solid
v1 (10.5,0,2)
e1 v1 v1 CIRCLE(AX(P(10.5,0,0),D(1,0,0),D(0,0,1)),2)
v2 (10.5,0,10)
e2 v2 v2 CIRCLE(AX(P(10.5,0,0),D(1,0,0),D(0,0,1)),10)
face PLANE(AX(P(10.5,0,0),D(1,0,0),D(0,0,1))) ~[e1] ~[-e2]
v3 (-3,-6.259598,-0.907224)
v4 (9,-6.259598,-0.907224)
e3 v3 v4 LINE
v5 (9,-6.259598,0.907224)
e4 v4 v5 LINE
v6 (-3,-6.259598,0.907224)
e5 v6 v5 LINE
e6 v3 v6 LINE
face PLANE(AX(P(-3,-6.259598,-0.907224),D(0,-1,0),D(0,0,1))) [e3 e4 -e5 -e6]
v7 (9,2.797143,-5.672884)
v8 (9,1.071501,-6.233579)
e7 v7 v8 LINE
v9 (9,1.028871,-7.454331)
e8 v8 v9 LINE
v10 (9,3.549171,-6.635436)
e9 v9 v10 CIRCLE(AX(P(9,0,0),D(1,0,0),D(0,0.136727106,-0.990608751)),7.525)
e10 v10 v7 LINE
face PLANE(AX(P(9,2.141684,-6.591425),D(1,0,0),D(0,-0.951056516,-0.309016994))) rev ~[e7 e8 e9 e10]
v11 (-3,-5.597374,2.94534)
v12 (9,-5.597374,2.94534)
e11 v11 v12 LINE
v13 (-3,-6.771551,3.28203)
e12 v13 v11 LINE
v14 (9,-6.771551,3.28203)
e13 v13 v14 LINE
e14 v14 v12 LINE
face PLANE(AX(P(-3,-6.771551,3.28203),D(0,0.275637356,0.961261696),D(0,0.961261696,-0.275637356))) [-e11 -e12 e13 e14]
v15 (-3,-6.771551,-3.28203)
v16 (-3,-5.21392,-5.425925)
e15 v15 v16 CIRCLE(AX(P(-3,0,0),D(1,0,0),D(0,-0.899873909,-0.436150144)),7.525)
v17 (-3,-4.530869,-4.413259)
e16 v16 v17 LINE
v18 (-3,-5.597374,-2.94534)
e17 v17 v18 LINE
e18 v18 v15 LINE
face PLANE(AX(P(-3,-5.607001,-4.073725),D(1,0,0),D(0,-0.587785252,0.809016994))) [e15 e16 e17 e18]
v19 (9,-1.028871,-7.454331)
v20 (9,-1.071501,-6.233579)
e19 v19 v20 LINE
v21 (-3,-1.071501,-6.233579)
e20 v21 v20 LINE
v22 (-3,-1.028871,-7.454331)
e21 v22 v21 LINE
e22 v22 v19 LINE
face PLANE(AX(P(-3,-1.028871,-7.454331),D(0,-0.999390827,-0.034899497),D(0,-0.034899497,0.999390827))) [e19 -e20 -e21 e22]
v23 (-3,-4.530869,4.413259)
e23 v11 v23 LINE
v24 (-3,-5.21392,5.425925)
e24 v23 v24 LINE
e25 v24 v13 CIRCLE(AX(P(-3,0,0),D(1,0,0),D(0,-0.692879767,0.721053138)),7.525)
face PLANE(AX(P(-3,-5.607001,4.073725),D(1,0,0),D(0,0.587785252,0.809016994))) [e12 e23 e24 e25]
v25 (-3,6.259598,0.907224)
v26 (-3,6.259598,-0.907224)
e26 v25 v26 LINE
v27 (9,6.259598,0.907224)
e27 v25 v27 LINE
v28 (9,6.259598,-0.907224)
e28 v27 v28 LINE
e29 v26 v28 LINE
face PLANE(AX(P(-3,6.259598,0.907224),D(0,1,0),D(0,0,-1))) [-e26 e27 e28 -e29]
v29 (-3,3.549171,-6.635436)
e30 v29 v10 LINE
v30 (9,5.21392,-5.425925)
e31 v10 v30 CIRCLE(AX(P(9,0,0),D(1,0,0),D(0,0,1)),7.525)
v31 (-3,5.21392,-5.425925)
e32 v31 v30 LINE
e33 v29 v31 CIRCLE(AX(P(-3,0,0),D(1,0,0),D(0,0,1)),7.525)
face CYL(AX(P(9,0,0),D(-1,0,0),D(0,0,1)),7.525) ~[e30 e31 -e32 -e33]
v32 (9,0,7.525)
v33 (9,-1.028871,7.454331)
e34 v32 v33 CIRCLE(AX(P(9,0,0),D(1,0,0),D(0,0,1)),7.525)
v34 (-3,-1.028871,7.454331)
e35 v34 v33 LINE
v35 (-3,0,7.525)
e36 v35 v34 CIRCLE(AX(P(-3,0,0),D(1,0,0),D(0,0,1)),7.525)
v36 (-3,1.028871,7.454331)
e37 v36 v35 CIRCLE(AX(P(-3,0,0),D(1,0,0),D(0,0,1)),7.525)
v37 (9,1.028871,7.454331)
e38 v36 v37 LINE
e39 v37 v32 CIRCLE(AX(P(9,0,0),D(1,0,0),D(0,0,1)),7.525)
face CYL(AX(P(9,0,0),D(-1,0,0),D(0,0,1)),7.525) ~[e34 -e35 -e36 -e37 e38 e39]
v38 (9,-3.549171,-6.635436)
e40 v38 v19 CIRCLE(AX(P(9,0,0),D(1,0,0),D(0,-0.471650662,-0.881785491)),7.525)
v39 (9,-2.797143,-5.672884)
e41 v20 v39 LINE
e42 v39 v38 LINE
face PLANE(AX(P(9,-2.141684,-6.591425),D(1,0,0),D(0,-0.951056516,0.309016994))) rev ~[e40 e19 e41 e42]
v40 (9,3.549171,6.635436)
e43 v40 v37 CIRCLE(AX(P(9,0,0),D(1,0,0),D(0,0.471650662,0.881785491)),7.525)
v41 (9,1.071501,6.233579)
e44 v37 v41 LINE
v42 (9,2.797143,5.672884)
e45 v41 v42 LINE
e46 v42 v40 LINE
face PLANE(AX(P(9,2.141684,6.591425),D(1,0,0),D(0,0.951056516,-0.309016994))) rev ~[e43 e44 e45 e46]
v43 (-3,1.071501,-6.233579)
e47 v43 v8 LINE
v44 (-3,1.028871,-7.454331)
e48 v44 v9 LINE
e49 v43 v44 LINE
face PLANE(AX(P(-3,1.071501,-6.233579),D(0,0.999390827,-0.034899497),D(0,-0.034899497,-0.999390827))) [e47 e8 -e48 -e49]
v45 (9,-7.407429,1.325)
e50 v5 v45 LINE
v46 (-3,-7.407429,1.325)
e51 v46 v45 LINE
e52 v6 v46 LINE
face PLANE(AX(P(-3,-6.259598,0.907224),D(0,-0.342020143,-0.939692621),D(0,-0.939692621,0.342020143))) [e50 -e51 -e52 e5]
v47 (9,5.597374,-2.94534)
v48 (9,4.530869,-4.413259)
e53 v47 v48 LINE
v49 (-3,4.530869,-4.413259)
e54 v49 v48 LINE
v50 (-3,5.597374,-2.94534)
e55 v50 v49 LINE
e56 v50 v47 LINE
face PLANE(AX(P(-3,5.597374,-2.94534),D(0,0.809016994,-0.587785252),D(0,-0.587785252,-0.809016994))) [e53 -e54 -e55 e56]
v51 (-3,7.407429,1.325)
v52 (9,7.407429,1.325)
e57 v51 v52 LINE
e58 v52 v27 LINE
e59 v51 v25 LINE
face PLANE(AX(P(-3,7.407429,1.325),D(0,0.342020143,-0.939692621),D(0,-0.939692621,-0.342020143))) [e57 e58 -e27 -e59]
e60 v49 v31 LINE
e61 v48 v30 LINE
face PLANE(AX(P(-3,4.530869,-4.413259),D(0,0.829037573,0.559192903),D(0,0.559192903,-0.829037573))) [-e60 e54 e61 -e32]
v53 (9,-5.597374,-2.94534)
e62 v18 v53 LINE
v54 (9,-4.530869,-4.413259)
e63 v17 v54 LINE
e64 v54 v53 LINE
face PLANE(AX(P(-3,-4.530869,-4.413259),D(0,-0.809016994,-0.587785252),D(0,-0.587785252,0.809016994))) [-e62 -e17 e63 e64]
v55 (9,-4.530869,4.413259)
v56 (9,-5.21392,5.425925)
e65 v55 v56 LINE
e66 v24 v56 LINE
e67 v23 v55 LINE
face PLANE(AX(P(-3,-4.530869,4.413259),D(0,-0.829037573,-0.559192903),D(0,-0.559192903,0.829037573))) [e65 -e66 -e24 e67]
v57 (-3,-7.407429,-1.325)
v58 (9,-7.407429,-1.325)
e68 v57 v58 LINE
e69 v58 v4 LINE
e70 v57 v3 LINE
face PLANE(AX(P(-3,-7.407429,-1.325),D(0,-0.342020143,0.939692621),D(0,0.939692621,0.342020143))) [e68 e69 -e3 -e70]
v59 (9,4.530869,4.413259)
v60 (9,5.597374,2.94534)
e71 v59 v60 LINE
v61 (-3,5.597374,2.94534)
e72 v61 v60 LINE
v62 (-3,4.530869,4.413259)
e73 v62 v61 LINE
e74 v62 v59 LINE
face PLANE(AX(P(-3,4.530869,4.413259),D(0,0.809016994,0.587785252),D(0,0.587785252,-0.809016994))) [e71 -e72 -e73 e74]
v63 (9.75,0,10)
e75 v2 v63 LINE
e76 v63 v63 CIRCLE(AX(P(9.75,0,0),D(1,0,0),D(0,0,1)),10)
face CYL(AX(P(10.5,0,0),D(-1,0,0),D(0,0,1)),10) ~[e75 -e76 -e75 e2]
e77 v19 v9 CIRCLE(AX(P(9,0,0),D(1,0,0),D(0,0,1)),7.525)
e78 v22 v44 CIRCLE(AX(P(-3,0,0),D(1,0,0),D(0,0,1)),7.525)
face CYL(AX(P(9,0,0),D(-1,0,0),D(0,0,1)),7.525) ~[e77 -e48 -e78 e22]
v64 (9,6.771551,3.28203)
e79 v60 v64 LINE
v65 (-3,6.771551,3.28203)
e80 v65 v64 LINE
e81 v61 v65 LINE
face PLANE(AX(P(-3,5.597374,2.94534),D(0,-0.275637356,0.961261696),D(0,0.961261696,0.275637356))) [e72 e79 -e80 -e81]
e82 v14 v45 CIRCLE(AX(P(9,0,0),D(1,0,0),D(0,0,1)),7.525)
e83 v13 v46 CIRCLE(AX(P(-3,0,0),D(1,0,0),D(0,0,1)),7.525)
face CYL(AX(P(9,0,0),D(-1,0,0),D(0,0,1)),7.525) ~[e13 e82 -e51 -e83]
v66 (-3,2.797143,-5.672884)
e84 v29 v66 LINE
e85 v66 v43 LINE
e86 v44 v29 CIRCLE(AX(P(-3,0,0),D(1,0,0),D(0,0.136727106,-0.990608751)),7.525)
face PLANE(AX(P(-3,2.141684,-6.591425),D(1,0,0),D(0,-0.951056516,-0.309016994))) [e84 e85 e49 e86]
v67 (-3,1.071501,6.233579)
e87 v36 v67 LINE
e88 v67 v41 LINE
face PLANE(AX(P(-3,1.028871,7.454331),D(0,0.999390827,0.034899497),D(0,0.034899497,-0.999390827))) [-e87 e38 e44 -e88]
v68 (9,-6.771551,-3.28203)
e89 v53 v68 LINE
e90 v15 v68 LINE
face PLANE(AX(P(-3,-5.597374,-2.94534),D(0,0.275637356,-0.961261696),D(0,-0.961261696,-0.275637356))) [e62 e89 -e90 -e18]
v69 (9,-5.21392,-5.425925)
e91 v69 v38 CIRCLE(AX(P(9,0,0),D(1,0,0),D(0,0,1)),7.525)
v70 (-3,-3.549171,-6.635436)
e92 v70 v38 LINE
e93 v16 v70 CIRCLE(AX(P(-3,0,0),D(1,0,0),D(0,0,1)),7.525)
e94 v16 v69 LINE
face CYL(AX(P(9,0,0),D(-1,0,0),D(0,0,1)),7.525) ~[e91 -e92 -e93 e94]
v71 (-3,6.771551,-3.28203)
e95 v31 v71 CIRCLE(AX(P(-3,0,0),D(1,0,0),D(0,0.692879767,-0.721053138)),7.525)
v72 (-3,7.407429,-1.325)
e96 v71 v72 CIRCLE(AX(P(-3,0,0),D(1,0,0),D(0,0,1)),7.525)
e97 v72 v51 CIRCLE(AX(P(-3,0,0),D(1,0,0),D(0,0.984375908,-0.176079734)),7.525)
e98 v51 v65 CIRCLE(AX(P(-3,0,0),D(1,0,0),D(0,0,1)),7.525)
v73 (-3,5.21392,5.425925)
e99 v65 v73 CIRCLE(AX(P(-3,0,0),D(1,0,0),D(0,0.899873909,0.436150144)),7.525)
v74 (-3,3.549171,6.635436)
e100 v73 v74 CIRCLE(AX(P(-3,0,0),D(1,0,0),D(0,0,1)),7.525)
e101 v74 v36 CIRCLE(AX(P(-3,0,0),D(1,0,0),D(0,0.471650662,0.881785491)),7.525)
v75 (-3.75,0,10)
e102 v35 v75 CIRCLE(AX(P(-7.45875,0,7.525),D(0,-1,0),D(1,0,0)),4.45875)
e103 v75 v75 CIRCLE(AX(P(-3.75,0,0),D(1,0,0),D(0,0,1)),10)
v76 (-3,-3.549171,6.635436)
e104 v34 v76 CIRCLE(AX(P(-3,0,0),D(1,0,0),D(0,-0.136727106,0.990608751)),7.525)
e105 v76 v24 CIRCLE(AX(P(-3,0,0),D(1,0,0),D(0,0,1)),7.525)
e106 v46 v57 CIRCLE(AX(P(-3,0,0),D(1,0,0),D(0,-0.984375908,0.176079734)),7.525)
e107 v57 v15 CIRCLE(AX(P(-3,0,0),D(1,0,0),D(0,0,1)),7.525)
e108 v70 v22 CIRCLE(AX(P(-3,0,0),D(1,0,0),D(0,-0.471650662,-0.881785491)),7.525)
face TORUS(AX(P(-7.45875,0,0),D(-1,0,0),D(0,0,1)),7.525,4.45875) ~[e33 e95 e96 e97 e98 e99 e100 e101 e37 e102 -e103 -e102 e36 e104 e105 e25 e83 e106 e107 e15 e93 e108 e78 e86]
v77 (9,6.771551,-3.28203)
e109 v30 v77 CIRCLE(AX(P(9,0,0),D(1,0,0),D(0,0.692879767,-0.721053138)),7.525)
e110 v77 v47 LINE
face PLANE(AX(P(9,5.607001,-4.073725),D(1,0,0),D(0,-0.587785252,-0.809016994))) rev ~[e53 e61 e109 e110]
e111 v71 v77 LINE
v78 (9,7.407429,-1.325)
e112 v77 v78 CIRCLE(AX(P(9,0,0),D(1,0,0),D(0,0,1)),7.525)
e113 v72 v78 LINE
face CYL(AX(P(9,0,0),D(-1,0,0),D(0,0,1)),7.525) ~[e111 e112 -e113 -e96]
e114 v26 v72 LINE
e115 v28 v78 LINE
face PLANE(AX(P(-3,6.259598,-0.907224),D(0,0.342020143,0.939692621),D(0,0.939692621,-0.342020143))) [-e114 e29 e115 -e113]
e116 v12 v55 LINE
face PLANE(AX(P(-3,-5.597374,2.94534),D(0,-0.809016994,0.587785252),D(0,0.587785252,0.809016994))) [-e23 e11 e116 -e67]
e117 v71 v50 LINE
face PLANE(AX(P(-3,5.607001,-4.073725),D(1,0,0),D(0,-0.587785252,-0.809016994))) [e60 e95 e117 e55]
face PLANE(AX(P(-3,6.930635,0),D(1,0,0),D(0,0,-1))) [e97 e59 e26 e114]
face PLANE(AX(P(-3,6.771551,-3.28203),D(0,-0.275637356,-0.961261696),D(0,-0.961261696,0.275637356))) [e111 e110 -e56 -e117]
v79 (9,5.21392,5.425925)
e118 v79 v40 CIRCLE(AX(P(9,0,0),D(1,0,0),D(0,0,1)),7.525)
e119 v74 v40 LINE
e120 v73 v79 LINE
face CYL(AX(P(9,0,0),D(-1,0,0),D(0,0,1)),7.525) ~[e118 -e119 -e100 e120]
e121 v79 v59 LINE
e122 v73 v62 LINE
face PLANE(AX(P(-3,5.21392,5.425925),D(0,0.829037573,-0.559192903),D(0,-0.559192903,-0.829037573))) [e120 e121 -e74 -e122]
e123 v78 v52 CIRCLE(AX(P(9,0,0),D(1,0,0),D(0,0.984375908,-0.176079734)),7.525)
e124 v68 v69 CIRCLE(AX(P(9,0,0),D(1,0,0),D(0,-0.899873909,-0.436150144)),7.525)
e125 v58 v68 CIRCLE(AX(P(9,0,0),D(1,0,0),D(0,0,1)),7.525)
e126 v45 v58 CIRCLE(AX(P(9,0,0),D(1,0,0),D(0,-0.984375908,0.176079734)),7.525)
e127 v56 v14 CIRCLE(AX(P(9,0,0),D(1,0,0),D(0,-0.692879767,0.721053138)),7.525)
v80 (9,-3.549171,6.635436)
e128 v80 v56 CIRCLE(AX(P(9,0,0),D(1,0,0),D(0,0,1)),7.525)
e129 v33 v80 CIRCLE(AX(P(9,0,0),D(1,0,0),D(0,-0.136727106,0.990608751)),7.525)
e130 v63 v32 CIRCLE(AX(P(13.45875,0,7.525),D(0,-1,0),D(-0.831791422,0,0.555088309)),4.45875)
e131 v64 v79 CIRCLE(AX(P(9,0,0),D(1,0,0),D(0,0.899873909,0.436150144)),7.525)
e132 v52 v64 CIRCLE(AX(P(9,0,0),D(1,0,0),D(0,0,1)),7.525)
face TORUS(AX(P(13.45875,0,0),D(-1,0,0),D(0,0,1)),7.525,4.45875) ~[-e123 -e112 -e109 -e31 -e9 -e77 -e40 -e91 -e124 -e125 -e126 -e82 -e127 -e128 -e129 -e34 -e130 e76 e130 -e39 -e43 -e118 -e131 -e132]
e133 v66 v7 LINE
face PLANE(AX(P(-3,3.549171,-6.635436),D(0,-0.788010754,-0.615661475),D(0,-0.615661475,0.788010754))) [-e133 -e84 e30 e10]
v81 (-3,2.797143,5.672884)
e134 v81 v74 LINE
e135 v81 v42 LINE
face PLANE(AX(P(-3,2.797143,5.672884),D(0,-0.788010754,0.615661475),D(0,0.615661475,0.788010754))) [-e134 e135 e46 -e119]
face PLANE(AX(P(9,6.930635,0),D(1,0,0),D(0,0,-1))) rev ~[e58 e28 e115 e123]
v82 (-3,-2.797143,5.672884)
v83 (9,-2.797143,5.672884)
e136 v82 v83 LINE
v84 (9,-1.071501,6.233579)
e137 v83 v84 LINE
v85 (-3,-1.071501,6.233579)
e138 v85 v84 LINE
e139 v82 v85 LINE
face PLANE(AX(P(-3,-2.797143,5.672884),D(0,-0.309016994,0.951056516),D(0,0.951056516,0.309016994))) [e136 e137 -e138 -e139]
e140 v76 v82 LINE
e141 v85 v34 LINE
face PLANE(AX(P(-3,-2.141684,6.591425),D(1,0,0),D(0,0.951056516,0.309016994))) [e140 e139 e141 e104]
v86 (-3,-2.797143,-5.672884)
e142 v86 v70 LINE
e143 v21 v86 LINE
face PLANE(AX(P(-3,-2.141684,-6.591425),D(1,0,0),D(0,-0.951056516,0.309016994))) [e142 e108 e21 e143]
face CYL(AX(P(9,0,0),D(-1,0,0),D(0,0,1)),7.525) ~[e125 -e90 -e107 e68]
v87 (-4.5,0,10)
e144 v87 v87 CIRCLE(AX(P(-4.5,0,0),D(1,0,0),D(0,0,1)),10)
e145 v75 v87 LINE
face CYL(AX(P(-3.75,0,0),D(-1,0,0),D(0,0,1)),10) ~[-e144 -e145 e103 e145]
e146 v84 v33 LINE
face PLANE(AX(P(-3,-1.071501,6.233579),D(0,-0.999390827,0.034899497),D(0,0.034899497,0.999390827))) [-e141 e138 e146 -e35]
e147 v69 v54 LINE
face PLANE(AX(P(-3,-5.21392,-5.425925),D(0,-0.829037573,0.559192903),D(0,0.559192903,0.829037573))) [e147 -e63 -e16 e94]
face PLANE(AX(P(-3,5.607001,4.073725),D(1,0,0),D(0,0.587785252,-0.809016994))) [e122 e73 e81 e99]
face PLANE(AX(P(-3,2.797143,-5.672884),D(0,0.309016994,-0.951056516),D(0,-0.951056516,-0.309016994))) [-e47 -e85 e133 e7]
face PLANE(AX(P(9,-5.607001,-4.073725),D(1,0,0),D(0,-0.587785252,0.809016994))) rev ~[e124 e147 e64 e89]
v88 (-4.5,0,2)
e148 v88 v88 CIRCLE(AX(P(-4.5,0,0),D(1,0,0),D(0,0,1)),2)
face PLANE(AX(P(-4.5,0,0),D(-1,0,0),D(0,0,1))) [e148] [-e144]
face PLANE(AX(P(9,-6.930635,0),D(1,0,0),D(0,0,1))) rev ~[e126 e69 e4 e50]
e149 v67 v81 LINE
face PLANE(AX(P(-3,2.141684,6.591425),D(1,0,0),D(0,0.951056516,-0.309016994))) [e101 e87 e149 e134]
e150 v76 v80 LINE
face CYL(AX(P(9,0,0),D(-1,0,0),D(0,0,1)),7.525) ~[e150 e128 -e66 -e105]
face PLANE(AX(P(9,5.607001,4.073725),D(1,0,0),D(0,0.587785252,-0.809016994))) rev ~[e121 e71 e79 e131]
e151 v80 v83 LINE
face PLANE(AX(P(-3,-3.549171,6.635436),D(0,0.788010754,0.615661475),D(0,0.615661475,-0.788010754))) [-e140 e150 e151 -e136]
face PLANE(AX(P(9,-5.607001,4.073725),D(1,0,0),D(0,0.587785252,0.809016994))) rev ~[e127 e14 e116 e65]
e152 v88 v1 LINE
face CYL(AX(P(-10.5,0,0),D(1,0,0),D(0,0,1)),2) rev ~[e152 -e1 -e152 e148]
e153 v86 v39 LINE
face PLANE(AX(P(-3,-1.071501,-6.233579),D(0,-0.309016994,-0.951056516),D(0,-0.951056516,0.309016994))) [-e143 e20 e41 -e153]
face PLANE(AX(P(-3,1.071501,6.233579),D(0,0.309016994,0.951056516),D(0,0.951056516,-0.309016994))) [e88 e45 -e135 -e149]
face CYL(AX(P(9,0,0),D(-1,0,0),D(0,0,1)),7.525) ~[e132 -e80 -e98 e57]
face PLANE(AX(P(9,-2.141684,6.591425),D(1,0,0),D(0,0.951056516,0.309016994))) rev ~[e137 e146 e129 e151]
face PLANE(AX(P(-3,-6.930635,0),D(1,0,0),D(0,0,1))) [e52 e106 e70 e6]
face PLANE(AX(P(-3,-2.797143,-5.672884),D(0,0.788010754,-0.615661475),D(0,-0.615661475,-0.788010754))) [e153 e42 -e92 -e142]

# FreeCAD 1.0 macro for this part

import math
import FreeCAD as App
import Part
import Sketcher
from FreeCAD import Vector
Q = App.Units.Quantity

doc = App.newDocument("Part")
params = doc.addObject("Spreadsheet::Sheet", "Params")
for row, (alias, value) in enumerate([
    ("sketch1_width", "21 mm"),
    ("sketch1_width2", "12 mm"),
    ("sketch1_width3", "6 mm"),
    ("sketch1_height", "8 mm"),
    ("sketch1_width4", "0.75 mm"),
    ("revolution_angle", "360 deg"),
    ("pocket1_length", "12 mm"),
    ("sketch3_diameter", "8 mm"),
    ("pocket2_length", "6 mm"),
], start=1):
    params.set(f"A{row}", alias)
    params.set(f"B{row}", "=" + value)
    params.setAlias(f"B{row}", alias)

body = doc.addObject("PartDesign::Body", "Body")

# Sketch on XY plane
sketch1 = body.newObject("Sketcher::SketchObject", "Sketch")
sketch1.AttachmentSupport = (doc.getObject("XY_Plane"), [""])
sketch1.MapMode = "FlatFace"
sketch1.addGeometry([
    Part.LineSegment(Vector(-10.5, 2, 0), Vector(10.5, 2, 0)),  # 0
    Part.LineSegment(Vector(10.5, 2, 0), Vector(10.5, 10, 0)),  # 1
    Part.LineSegment(Vector(10.5, 10, 0), Vector(9.75, 10, 0)),  # 2
    Part.ArcOfCircle(Part.Circle(Vector(13.45875, 7.525, 0), Vector(0, 0, 1), 4.45875), math.radians(146.283202), math.radians(180)),  # 3
    Part.LineSegment(Vector(9, 7.525, 0), Vector(-3, 7.525, 0)),  # 4
    Part.ArcOfCircle(Part.Circle(Vector(-7.45875, 7.525, 0), Vector(0, 0, 1), 4.45875), math.radians(0), math.radians(33.716798)),  # 5
    Part.LineSegment(Vector(-3.75, 10, 0), Vector(-4.5, 10, 0)),  # 6
    Part.LineSegment(Vector(-4.5, 10, 0), Vector(-4.5, 4, 0)),  # 7
    Part.LineSegment(Vector(-4.5, 4, 0), Vector(-10.5, 4, 0)),  # 8
    Part.LineSegment(Vector(-10.5, 4, 0), Vector(-10.5, 2, 0)),  # 9
], False)
sketch1.addConstraint([
    Sketcher.Constraint("Coincident", 0, 2, 1, 1),
    Sketcher.Constraint("Coincident", 1, 2, 2, 1),
    Sketcher.Constraint("Coincident", 2, 2, 3, 1),
    Sketcher.Constraint("Coincident", 3, 2, 4, 1),
    Sketcher.Constraint("Coincident", 4, 2, 5, 1),
    Sketcher.Constraint("Coincident", 5, 2, 6, 1),
    Sketcher.Constraint("Coincident", 6, 2, 7, 1),
    Sketcher.Constraint("Coincident", 7, 2, 8, 1),
    Sketcher.Constraint("Coincident", 8, 2, 9, 1),
    Sketcher.Constraint("Coincident", 9, 2, 0, 1),
    Sketcher.Constraint("Horizontal", 0),
    Sketcher.Constraint("Vertical", 1),
    Sketcher.Constraint("Horizontal", 2),
    Sketcher.Constraint("Horizontal", 4),
    Sketcher.Constraint("Horizontal", 6),
    Sketcher.Constraint("Vertical", 7),
    Sketcher.Constraint("Horizontal", 8),
    Sketcher.Constraint("Vertical", 9),
    Sketcher.Constraint("Equal", 3, 5),
    Sketcher.Constraint("Horizontal", 3, 3, 5, 3),
    Sketcher.Constraint("Horizontal", 5, 3, 3, 2),
    Sketcher.Constraint("Horizontal", 2, 2, 5, 2),
    Sketcher.Constraint("Equal", 2, 6),
    Sketcher.Constraint("Equal", 8, 7),
    Sketcher.Constraint("DistanceX", 0, 1, 0, 2, 21.0),
    Sketcher.Constraint("DistanceX", 4, 2, 4, 1, 12.0),
    Sketcher.Constraint("DistanceX", 8, 2, 8, 1, 6.0),
    Sketcher.Constraint("DistanceY", 1, 1, 1, 2, 8.0),
    Sketcher.Constraint("DistanceY", -1, 1, 0, 2, 2.0),
    Sketcher.Constraint("DistanceX", -1, 1, 3, 2, 9.0),
    Sketcher.Constraint("DistanceX", 2, 2, 2, 1, 0.75),
    Sketcher.Constraint("Radius", 3, 4.45875),
])
sketch1.setExpression("Constraints[24]", "Params.sketch1_width")
sketch1.setExpression("Constraints[25]", "Params.sketch1_width2")
sketch1.setExpression("Constraints[26]", "Params.sketch1_width3")
sketch1.setExpression("Constraints[27]", "Params.sketch1_height")
sketch1.setExpression("Constraints[30]", "Params.sketch1_width4")
revolution = body.newObject("PartDesign::Revolution", "Revolution")
revolution.Profile = sketch1
revolution.ReferenceAxis = (sketch1, ["H_Axis"])
revolution.setExpression("Angle", "Params.revolution_angle")

# Sketch on YZ plane
sketch2 = body.newObject("Sketcher::SketchObject", "Sketch001")
sketch2.AttachmentSupport = (doc.getObject("YZ_Plane"), [""])
sketch2.MapMode = "FlatFace"
sketch2.AttachmentOffset = App.Placement(Vector(0, 0, -3), App.Rotation())
sketch2.addGeometry([
    Part.LineSegment(Vector(7.407429, 1.325, 0), Vector(6.259598, 0.907224, 0)),
    Part.LineSegment(Vector(6.259598, 0.907224, 0), Vector(6.259598, -0.907224, 0)),
    Part.LineSegment(Vector(6.259598, -0.907224, 0), Vector(7.407429, -1.325, 0)),
    Part.ArcOfCircle(Part.Circle(Vector(0, 0, 0), Vector(0, 0, 1), 7.525), math.radians(-10.141498), math.radians(10.141498)),
], False)
sketch2.addConstraint([
    Sketcher.Constraint("Coincident", 0, 2, 1, 1),
    Sketcher.Constraint("Coincident", 1, 2, 2, 1),
    Sketcher.Constraint("Coincident", 2, 2, 3, 1),
    Sketcher.Constraint("Coincident", 3, 2, 0, 1),
    Sketcher.Constraint("Vertical", 1),
    Sketcher.Constraint("Coincident", 3, 3, -1, 1),
    Sketcher.Constraint("Vertical", 2, 2, 3, 2),
    Sketcher.Constraint("Equal", 0, 2),
    Sketcher.Constraint("Angle", 0, Q("-160 deg")),
    Sketcher.Constraint("Radius", 3, 7.525),
    Sketcher.Constraint("DistanceY", 2, 2, 3, 2, 2.65),
    Sketcher.Constraint("DistanceX", -1, 1, 0, 2, 6.259598),
])
pocket1 = body.newObject("PartDesign::Pocket", "Pocket")
pocket1.Profile = sketch2
pocket1.setExpression("Length", "Params.pocket1_length")
pocket1.Reversed = True
doc.recompute()

polarpattern = body.newObject("PartDesign::PolarPattern", "PolarPattern")
polarpattern.Originals = [pocket1]
polarpattern.Axis = (doc.getObject("X_Axis"), [""])
polarpattern.Angle = 360
polarpattern.Occurrences = 10
body.Tip = polarpattern

# Sketch on YZ plane
sketch3 = body.newObject("Sketcher::SketchObject", "Sketch002")
sketch3.AttachmentSupport = (doc.getObject("YZ_Plane"), [""])
sketch3.MapMode = "FlatFace"
sketch3.AttachmentOffset = App.Placement(Vector(0, 0, -10.5), App.Rotation())
sketch3.addGeometry(Part.Circle(Vector(0, 0, 0), Vector(0, 0, 1), 4), False)
sketch3.addConstraint([
    Sketcher.Constraint("Coincident", 0, 3, -1, 1),
    Sketcher.Constraint("Diameter", 0, 8.0),
])
sketch3.setExpression("Constraints[1]", "Params.sketch3_diameter")
pocket2 = body.newObject("PartDesign::Pocket", "Pocket001")
pocket2.Profile = sketch3
pocket2.setExpression("Length", "Params.pocket2_length")
pocket2.Reversed = True

doc.recompute()
